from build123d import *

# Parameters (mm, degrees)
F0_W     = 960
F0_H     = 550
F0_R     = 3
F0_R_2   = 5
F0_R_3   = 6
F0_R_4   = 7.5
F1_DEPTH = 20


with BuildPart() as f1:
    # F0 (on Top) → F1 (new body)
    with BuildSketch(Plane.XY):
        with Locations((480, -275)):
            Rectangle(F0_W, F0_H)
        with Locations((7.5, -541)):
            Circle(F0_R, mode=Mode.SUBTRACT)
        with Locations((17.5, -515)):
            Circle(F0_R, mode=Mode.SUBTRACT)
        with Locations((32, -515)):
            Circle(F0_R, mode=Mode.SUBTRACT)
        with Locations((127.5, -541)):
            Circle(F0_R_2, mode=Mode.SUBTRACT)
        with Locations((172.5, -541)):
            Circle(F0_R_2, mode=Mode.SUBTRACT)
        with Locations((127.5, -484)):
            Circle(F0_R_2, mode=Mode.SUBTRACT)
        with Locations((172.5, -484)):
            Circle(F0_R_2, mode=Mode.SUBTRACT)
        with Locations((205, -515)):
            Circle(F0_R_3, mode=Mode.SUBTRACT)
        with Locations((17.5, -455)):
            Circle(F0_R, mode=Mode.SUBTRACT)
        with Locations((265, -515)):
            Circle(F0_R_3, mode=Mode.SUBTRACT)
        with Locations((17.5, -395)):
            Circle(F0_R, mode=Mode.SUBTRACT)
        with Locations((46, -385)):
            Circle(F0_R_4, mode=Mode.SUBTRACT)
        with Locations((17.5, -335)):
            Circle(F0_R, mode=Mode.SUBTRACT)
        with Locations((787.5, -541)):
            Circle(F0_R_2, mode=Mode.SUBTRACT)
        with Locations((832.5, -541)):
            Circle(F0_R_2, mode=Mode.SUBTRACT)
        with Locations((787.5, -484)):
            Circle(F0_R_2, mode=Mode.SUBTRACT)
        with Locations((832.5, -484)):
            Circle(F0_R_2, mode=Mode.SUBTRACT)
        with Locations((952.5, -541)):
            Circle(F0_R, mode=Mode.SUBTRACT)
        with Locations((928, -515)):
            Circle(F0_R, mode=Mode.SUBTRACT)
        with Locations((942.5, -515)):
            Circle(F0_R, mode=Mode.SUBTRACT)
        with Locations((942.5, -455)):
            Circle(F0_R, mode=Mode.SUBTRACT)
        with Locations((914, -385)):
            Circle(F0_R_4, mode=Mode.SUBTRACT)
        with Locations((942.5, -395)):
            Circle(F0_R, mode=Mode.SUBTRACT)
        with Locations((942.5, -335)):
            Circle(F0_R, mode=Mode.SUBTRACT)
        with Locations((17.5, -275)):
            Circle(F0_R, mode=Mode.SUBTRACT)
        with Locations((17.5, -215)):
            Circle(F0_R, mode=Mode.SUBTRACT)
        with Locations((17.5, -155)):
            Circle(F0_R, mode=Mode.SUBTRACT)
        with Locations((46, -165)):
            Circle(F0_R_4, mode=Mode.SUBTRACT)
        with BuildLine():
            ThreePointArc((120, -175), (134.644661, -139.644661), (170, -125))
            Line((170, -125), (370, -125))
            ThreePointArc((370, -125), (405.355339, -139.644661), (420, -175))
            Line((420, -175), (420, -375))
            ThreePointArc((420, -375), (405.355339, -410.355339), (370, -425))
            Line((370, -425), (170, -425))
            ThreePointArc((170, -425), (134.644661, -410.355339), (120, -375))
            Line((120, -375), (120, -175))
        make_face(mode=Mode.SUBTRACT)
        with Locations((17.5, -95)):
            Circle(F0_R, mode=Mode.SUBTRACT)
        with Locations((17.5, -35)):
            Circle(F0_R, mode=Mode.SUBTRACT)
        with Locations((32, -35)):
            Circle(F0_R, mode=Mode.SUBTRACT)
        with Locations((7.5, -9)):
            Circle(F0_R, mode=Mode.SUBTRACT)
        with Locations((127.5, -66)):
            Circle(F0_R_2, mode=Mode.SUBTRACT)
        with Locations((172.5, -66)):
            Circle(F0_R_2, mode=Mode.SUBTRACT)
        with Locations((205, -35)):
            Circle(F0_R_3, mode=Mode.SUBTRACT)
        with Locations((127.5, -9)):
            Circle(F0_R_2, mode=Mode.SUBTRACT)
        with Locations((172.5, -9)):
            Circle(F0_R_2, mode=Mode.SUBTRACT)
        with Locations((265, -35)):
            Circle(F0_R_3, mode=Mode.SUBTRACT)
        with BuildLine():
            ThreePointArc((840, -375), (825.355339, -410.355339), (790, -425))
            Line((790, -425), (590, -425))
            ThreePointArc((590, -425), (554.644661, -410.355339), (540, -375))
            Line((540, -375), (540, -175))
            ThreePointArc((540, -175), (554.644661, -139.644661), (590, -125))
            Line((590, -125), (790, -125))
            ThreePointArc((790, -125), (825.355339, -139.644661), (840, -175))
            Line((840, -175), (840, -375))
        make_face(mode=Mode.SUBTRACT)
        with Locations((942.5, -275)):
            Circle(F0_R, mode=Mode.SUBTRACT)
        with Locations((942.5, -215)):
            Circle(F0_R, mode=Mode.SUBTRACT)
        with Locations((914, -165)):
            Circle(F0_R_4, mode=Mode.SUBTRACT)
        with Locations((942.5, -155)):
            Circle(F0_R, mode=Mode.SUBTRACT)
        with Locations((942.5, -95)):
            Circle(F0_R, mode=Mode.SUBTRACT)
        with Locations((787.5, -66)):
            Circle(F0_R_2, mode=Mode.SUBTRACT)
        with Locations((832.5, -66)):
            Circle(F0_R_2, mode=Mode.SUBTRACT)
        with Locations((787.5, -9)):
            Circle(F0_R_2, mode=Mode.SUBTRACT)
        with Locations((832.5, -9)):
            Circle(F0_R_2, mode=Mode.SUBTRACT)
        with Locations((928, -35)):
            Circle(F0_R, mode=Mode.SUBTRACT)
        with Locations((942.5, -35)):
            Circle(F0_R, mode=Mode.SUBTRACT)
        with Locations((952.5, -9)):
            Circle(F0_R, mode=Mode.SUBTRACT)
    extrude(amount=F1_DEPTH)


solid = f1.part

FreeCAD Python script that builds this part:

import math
import FreeCAD as App
import Part
import Sketcher
from FreeCAD import Vector
Q = App.Units.Quantity

doc = App.newDocument("Part")
body = doc.addObject("PartDesign::Body", "Body")

# Sketch on XY plane
sketch1 = body.newObject("Sketcher::SketchObject", "Sketch")
sketch1.AttachmentSupport = (doc.getObject("XY_Plane"), [""])
sketch1.MapMode = "FlatFace"
sketch1.addGeometry(Part.LineSegment(Vector(0, 0, 0), Vector(0, -550, 0)), False)
sketch1.addGeometry(Part.LineSegment(Vector(0, -550, 0), Vector(960, -550, 0)), False)
sketch1.addGeometry(Part.LineSegment(Vector(960, -550, 0), Vector(960, 0, 0)), False)
sketch1.addGeometry(Part.LineSegment(Vector(960, 0, 0), Vector(0, 0, 0)), False)
sketch1.addGeometry(Part.Circle(Vector(7.5, -541, 0), Vector(0, 0, 1), 3), False)
sketch1.addGeometry(Part.Circle(Vector(17.5, -515, 0), Vector(0, 0, 1), 3), False)
sketch1.addGeometry(Part.Circle(Vector(32, -515, 0), Vector(0, 0, 1), 3), False)
sketch1.addGeometry(Part.Circle(Vector(127.5, -541, 0), Vector(0, 0, 1), 5), False)
sketch1.addGeometry(Part.Circle(Vector(172.5, -541, 0), Vector(0, 0, 1), 5), False)
sketch1.addGeometry(Part.Circle(Vector(205, -515, 0), Vector(0, 0, 1), 6), False)
sketch1.addGeometry(Part.Circle(Vector(127.5, -484, 0), Vector(0, 0, 1), 5), False)
sketch1.addGeometry(Part.Circle(Vector(172.5, -484, 0), Vector(0, 0, 1), 5), False)
sketch1.addGeometry(Part.Circle(Vector(17.5, -455, 0), Vector(0, 0, 1), 3), False)
sketch1.addGeometry(Part.Circle(Vector(265, -515, 0), Vector(0, 0, 1), 6), False)
sketch1.addGeometry(Part.Circle(Vector(17.5, -395, 0), Vector(0, 0, 1), 3), False)
sketch1.addGeometry(Part.Circle(Vector(46, -385, 0), Vector(0, 0, 1), 7.5), False)
sketch1.addGeometry(Part.Circle(Vector(17.5, -335, 0), Vector(0, 0, 1), 3), False)
sketch1.addGeometry(Part.Circle(Vector(787.5, -541, 0), Vector(0, 0, 1), 5), False)
sketch1.addGeometry(Part.Circle(Vector(832.5, -541, 0), Vector(0, 0, 1), 5), False)
sketch1.addGeometry(Part.Circle(Vector(787.5, -484, 0), Vector(0, 0, 1), 5), False)
sketch1.addGeometry(Part.Circle(Vector(832.5, -484, 0), Vector(0, 0, 1), 5), False)
sketch1.addGeometry(Part.Circle(Vector(952.5, -541, 0), Vector(0, 0, 1), 3), False)
sketch1.addGeometry(Part.Circle(Vector(928, -515, 0), Vector(0, 0, 1), 3), False)
sketch1.addGeometry(Part.Circle(Vector(942.5, -515, 0), Vector(0, 0, 1), 3), False)
sketch1.addGeometry(Part.Circle(Vector(942.5, -455, 0), Vector(0, 0, 1), 3), False)
sketch1.addGeometry(Part.Circle(Vector(942.5, -395, 0), Vector(0, 0, 1), 3), False)
sketch1.addGeometry(Part.Circle(Vector(914, -385, 0), Vector(0, 0, 1), 7.5), False)
sketch1.addGeometry(Part.Circle(Vector(942.5, -335, 0), Vector(0, 0, 1), 3), False)
sketch1.addGeometry(Part.Circle(Vector(17.5, -275, 0), Vector(0, 0, 1), 3), False)
sketch1.addGeometry(Part.Circle(Vector(17.5, -215, 0), Vector(0, 0, 1), 3), False)
sketch1.addGeometry(Part.Circle(Vector(46, -165, 0), Vector(0, 0, 1), 7.5), False)
sketch1.addGeometry(Part.Circle(Vector(17.5, -155, 0), Vector(0, 0, 1), 3), False)
sketch1.addGeometry(Part.LineSegment(Vector(120, -375, 0), Vector(120, -175, 0)), False)
sketch1.addGeometry(Part.ArcOfCircle(Part.Circle(Vector(170, -175, 0), Vector(0, 0, 1), 50), math.radians(90), math.radians(180)), False)
sketch1.addGeometry(Part.LineSegment(Vector(170, -125, 0), Vector(370, -125, 0)), False)
sketch1.addGeometry(Part.ArcOfCircle(Part.Circle(Vector(370, -175, 0), Vector(0, 0, 1), 50), math.radians(0), math.radians(90)), False)
sketch1.addGeometry(Part.LineSegment(Vector(420, -175, 0), Vector(420, -375, 0)), False)
sketch1.addGeometry(Part.ArcOfCircle(Part.Circle(Vector(370, -375, 0), Vector(0, 0, 1), 50), math.radians(-90), math.radians(0)), False)
sketch1.addGeometry(Part.LineSegment(Vector(370, -425, 0), Vector(170, -425, 0)), False)
sketch1.addGeometry(Part.ArcOfCircle(Part.Circle(Vector(170, -375, 0), Vector(0, 0, 1), 50), math.radians(-180), math.radians(-90)), False)
sketch1.addGeometry(Part.Circle(Vector(17.5, -95, 0), Vector(0, 0, 1), 3), False)
sketch1.addGeometry(Part.Circle(Vector(17.5, -35, 0), Vector(0, 0, 1), 3), False)
sketch1.addGeometry(Part.Circle(Vector(32, -35, 0), Vector(0, 0, 1), 3), False)
sketch1.addGeometry(Part.Circle(Vector(7.5, -9, 0), Vector(0, 0, 1), 3), False)
sketch1.addGeometry(Part.Circle(Vector(127.5, -66, 0), Vector(0, 0, 1), 5), False)
sketch1.addGeometry(Part.Circle(Vector(172.5, -66, 0), Vector(0, 0, 1), 5), False)
sketch1.addGeometry(Part.Circle(Vector(127.5, -9, 0), Vector(0, 0, 1), 5), False)
sketch1.addGeometry(Part.Circle(Vector(172.5, -9, 0), Vector(0, 0, 1), 5), False)
sketch1.addGeometry(Part.Circle(Vector(205, -35, 0), Vector(0, 0, 1), 6), False)
sketch1.addGeometry(Part.Circle(Vector(265, -35, 0), Vector(0, 0, 1), 6), False)
sketch1.addGeometry(Part.LineSegment(Vector(840, -175, 0), Vector(840, -375, 0)), False)
sketch1.addGeometry(Part.ArcOfCircle(Part.Circle(Vector(790, -375, 0), Vector(0, 0, 1), 50), math.radians(-90), math.radians(0)), False)
sketch1.addGeometry(Part.LineSegment(Vector(790, -425, 0), Vector(590, -425, 0)), False)
sketch1.addGeometry(Part.ArcOfCircle(Part.Circle(Vector(590, -375, 0), Vector(0, 0, 1), 50), math.radians(-180), math.radians(-90)), False)
sketch1.addGeometry(Part.LineSegment(Vector(540, -375, 0), Vector(540, -175, 0)), False)
sketch1.addGeometry(Part.ArcOfCircle(Part.Circle(Vector(590, -175, 0), Vector(0, 0, 1), 50), math.radians(90), math.radians(180)), False)
sketch1.addGeometry(Part.LineSegment(Vector(590, -125, 0), Vector(790, -125, 0)), False)
sketch1.addGeometry(Part.ArcOfCircle(Part.Circle(Vector(790, -175, 0), Vector(0, 0, 1), 50), math.radians(0), math.radians(90)), False)
sketch1.addGeometry(Part.Circle(Vector(942.5, -275, 0), Vector(0, 0, 1), 3), False)
sketch1.addGeometry(Part.Circle(Vector(942.5, -215, 0), Vector(0, 0, 1), 3), False)
sketch1.addGeometry(Part.Circle(Vector(914, -165, 0), Vector(0, 0, 1), 7.5), False)
sketch1.addGeometry(Part.Circle(Vector(942.5, -155, 0), Vector(0, 0, 1), 3), False)
sketch1.addGeometry(Part.Circle(Vector(942.5, -95, 0), Vector(0, 0, 1), 3), False)
sketch1.addGeometry(Part.Circle(Vector(787.5, -66, 0), Vector(0, 0, 1), 5), False)
sketch1.addGeometry(Part.Circle(Vector(832.5, -66, 0), Vector(0, 0, 1), 5), False)
sketch1.addGeometry(Part.Circle(Vector(787.5, -9, 0), Vector(0, 0, 1), 5), False)
sketch1.addGeometry(Part.Circle(Vector(832.5, -9, 0), Vector(0, 0, 1), 5), False)
sketch1.addGeometry(Part.Circle(Vector(928, -35, 0), Vector(0, 0, 1), 3), False)
sketch1.addGeometry(Part.Circle(Vector(942.5, -35, 0), Vector(0, 0, 1), 3), False)
sketch1.addGeometry(Part.Circle(Vector(952.5, -9, 0), Vector(0, 0, 1), 3), False)
sketch1.addConstraint(Sketcher.Constraint("Coincident", 0, 2, 1, 1))
sketch1.addConstraint(Sketcher.Constraint("Coincident", 1, 2, 2, 1))
sketch1.addConstraint(Sketcher.Constraint("Coincident", 2, 2, 3, 1))
sketch1.addConstraint(Sketcher.Constraint("Coincident", 3, 2, 0, 1))
sketch1.addConstraint(Sketcher.Constraint("Tangent", 32, 2, 33, 2))
sketch1.addConstraint(Sketcher.Constraint("Tangent", 33, 1, 34, 1))
sketch1.addConstraint(Sketcher.Constraint("Tangent", 34, 2, 35, 2))
sketch1.addConstraint(Sketcher.Constraint("Tangent", 35, 1, 36, 1))
sketch1.addConstraint(Sketcher.Constraint("Tangent", 36, 2, 37, 2))
sketch1.addConstraint(Sketcher.Constraint("Tangent", 37, 1, 38, 1))
sketch1.addConstraint(Sketcher.Constraint("Tangent", 38, 2, 39, 2))
sketch1.addConstraint(Sketcher.Constraint("Tangent", 39, 1, 32, 1))
sketch1.addConstraint(Sketcher.Constraint("Tangent", 50, 2, 51, 2))
sketch1.addConstraint(Sketcher.Constraint("Tangent", 51, 1, 52, 1))
sketch1.addConstraint(Sketcher.Constraint("Tangent", 52, 2, 53, 2))
sketch1.addConstraint(Sketcher.Constraint("Tangent", 53, 1, 54, 1))
sketch1.addConstraint(Sketcher.Constraint("Tangent", 54, 2, 55, 2))
sketch1.addConstraint(Sketcher.Constraint("Tangent", 55, 1, 56, 1))
sketch1.addConstraint(Sketcher.Constraint("Tangent", 56, 2, 57, 2))
sketch1.addConstraint(Sketcher.Constraint("Tangent", 57, 1, 50, 1))
sketch1.addConstraint(Sketcher.Constraint("Vertical", 0))
sketch1.addConstraint(Sketcher.Constraint("Horizontal", 1))
sketch1.addConstraint(Sketcher.Constraint("Vertical", 2))
sketch1.addConstraint(Sketcher.Constraint("Horizontal", 3))
sketch1.addConstraint(Sketcher.Constraint("Vertical", 32))
sketch1.addConstraint(Sketcher.Constraint("Horizontal", 34))
sketch1.addConstraint(Sketcher.Constraint("Vertical", 36))
sketch1.addConstraint(Sketcher.Constraint("Horizontal", 38))
sketch1.addConstraint(Sketcher.Constraint("Vertical", 50))
sketch1.addConstraint(Sketcher.Constraint("Horizontal", 52))
sketch1.addConstraint(Sketcher.Constraint("Vertical", 54))
sketch1.addConstraint(Sketcher.Constraint("Horizontal", 56))
sketch1.addConstraint(Sketcher.Constraint("Coincident", 3, 2, -1, 1))
sketch1.addConstraint(Sketcher.Constraint("Equal", 4, 5))
sketch1.addConstraint(Sketcher.Constraint("Equal", 5, 6))
sketch1.addConstraint(Sketcher.Constraint("Equal", 7, 8))
sketch1.addConstraint(Sketcher.Constraint("Equal", 8, 10))
sketch1.addConstraint(Sketcher.Constraint("Equal", 10, 11))
sketch1.addConstraint(Sketcher.Constraint("Equal", 6, 12))
sketch1.addConstraint(Sketcher.Constraint("Equal", 9, 13))
sketch1.addConstraint(Sketcher.Constraint("Equal", 12, 14))
sketch1.addConstraint(Sketcher.Constraint("Equal", 14, 16))
sketch1.addConstraint(Sketcher.Constraint("Equal", 11, 17))
sketch1.addConstraint(Sketcher.Constraint("Equal", 17, 18))
sketch1.addConstraint(Sketcher.Constraint("Equal", 18, 19))
sketch1.addConstraint(Sketcher.Constraint("Equal", 19, 20))
sketch1.addConstraint(Sketcher.Constraint("Equal", 16, 21))
sketch1.addConstraint(Sketcher.Constraint("Equal", 21, 22))
sketch1.addConstraint(Sketcher.Constraint("Equal", 22, 23))
sketch1.addConstraint(Sketcher.Constraint("Equal", 23, 24))
sketch1.addConstraint(Sketcher.Constraint("Equal", 24, 25))
sketch1.addConstraint(Sketcher.Constraint("Equal", 15, 26))
sketch1.addConstraint(Sketcher.Constraint("Equal", 25, 27))
sketch1.addConstraint(Sketcher.Constraint("Equal", 27, 28))
sketch1.addConstraint(Sketcher.Constraint("Equal", 28, 29))
sketch1.addConstraint(Sketcher.Constraint("Equal", 26, 30))
sketch1.addConstraint(Sketcher.Constraint("Equal", 29, 31))
sketch1.addConstraint(Sketcher.Constraint("Equal", 33, 35))
sketch1.addConstraint(Sketcher.Constraint("Equal", 35, 37))
sketch1.addConstraint(Sketcher.Constraint("Equal", 37, 39))
sketch1.addConstraint(Sketcher.Constraint("Equal", 31, 40))
sketch1.addConstraint(Sketcher.Constraint("Equal", 40, 41))
sketch1.addConstraint(Sketcher.Constraint("Equal", 41, 42))
sketch1.addConstraint(Sketcher.Constraint("Equal", 42, 43))
sketch1.addConstraint(Sketcher.Constraint("Equal", 20, 44))
sketch1.addConstraint(Sketcher.Constraint("Equal", 44, 45))
sketch1.addConstraint(Sketcher.Constraint("Equal", 45, 46))
sketch1.addConstraint(Sketcher.Constraint("Equal", 46, 47))
sketch1.addConstraint(Sketcher.Constraint("Equal", 13, 48))
sketch1.addConstraint(Sketcher.Constraint("Equal", 48, 49))
sketch1.addConstraint(Sketcher.Constraint("Equal", 39, 51))
sketch1.addConstraint(Sketcher.Constraint("Equal", 51, 53))
sketch1.addConstraint(Sketcher.Constraint("Equal", 53, 55))
sketch1.addConstraint(Sketcher.Constraint("Equal", 55, 57))
sketch1.addConstraint(Sketcher.Constraint("Equal", 43, 58))
sketch1.addConstraint(Sketcher.Constraint("Equal", 58, 59))
sketch1.addConstraint(Sketcher.Constraint("Equal", 30, 60))
sketch1.addConstraint(Sketcher.Constraint("Equal", 59, 61))
sketch1.addConstraint(Sketcher.Constraint("Equal", 61, 62))
sketch1.addConstraint(Sketcher.Constraint("Equal", 47, 63))
sketch1.addConstraint(Sketcher.Constraint("Equal", 63, 64))
sketch1.addConstraint(Sketcher.Constraint("Equal", 64, 65))
sketch1.addConstraint(Sketcher.Constraint("Equal", 65, 66))
sketch1.addConstraint(Sketcher.Constraint("Equal", 62, 67))
sketch1.addConstraint(Sketcher.Constraint("Equal", 67, 68))
sketch1.addConstraint(Sketcher.Constraint("Equal", 68, 69))
sketch1.addConstraint(Sketcher.Constraint("Horizontal", 5, 3, 6, 3))
sketch1.addConstraint(Sketcher.Constraint("Horizontal", 4, 3, 7, 3))
sketch1.addConstraint(Sketcher.Constraint("Horizontal", 7, 3, 8, 3))
sketch1.addConstraint(Sketcher.Constraint("Horizontal", 6, 3, 9, 3))
sketch1.addConstraint(Sketcher.Constraint("Horizontal", 10, 3, 11, 3))
sketch1.addConstraint(Sketcher.Constraint("Horizontal", 9, 3, 13, 3))
sketch1.addConstraint(Sketcher.Constraint("Horizontal", 8, 3, 17, 3))
sketch1.addConstraint(Sketcher.Constraint("Horizontal", 17, 3, 18, 3))
sketch1.addConstraint(Sketcher.Constraint("Horizontal", 11, 3, 19, 3))
sketch1.addConstraint(Sketcher.Constraint("Horizontal", 19, 3, 20, 3))
sketch1.addConstraint(Sketcher.Constraint("Horizontal", 18, 3, 21, 3))
sketch1.addConstraint(Sketcher.Constraint("Horizontal", 13, 3, 22, 3))
sketch1.addConstraint(Sketcher.Constraint("Horizontal", 22, 3, 23, 3))
sketch1.addConstraint(Sketcher.Constraint("Horizontal", 12, 3, 24, 3))
sketch1.addConstraint(Sketcher.Constraint("Horizontal", 14, 3, 25, 3))
sketch1.addConstraint(Sketcher.Constraint("Horizontal", 15, 3, 26, 3))
sketch1.addConstraint(Sketcher.Constraint("Horizontal", 16, 3, 27, 3))
sketch1.addConstraint(Sketcher.Constraint("Horizontal", 41, 3, 42, 3))
sketch1.addConstraint(Sketcher.Constraint("Horizontal", 44, 3, 45, 3))
sketch1.addConstraint(Sketcher.Constraint("Horizontal", 43, 3, 46, 3))
sketch1.addConstraint(Sketcher.Constraint("Horizontal", 46, 3, 47, 3))
sketch1.addConstraint(Sketcher.Constraint("Horizontal", 42, 3, 48, 3))
sketch1.addConstraint(Sketcher.Constraint("Horizontal", 48, 3, 49, 3))
sketch1.addConstraint(Sketcher.Constraint("Horizontal", 39, 3, 51, 3))
sketch1.addConstraint(Sketcher.Constraint("Horizontal", 35, 3, 55, 3))
sketch1.addConstraint(Sketcher.Constraint("Horizontal", 28, 3, 58, 3))
sketch1.addConstraint(Sketcher.Constraint("Horizontal", 29, 3, 59, 3))
sketch1.addConstraint(Sketcher.Constraint("Horizontal", 30, 3, 60, 3))
sketch1.addConstraint(Sketcher.Constraint("Horizontal", 31, 3, 61, 3))
sketch1.addConstraint(Sketcher.Constraint("Horizontal", 40, 3, 62, 3))
sketch1.addConstraint(Sketcher.Constraint("Horizontal", 45, 3, 63, 3))
sketch1.addConstraint(Sketcher.Constraint("Horizontal", 63, 3, 64, 3))
sketch1.addConstraint(Sketcher.Constraint("Horizontal", 47, 3, 65, 3))
sketch1.addConstraint(Sketcher.Constraint("Horizontal", 65, 3, 66, 3))
sketch1.addConstraint(Sketcher.Constraint("Horizontal", 49, 3, 67, 3))
sketch1.addConstraint(Sketcher.Constraint("Horizontal", 67, 3, 68, 3))
sketch1.addConstraint(Sketcher.Constraint("Horizontal", 66, 3, 69, 3))
sketch1.addConstraint(Sketcher.Constraint("Vertical", 7, 3, 10, 3))
sketch1.addConstraint(Sketcher.Constraint("Vertical", 8, 3, 11, 3))
sketch1.addConstraint(Sketcher.Constraint("Vertical", 5, 3, 12, 3))
sketch1.addConstraint(Sketcher.Constraint("Vertical", 12, 3, 14, 3))
sketch1.addConstraint(Sketcher.Constraint("Vertical", 14, 3, 16, 3))
sketch1.addConstraint(Sketcher.Constraint("Vertical", 17, 3, 19, 3))
sketch1.addConstraint(Sketcher.Constraint("Vertical", 18, 3, 20, 3))
sketch1.addConstraint(Sketcher.Constraint("Vertical", 23, 3, 24, 3))
sketch1.addConstraint(Sketcher.Constraint("Vertical", 24, 3, 25, 3))
sketch1.addConstraint(Sketcher.Constraint("Vertical", 25, 3, 27, 3))
sketch1.addConstraint(Sketcher.Constraint("Vertical", 16, 3, 28, 3))
sketch1.addConstraint(Sketcher.Constraint("Vertical", 28, 3, 29, 3))
sketch1.addConstraint(Sketcher.Constraint("Vertical", 15, 3, 30, 3))
sketch1.addConstraint(Sketcher.Constraint("Vertical", 29, 3, 31, 3))
sketch1.addConstraint(Sketcher.Constraint("Vertical", 31, 3, 40, 3))
sketch1.addConstraint(Sketcher.Constraint("Vertical", 40, 3, 41, 3))
sketch1.addConstraint(Sketcher.Constraint("Vertical", 6, 3, 42, 3))
sketch1.addConstraint(Sketcher.Constraint("Vertical", 4, 3, 43, 3))
sketch1.addConstraint(Sketcher.Constraint("Vertical", 10, 3, 44, 3))
sketch1.addConstraint(Sketcher.Constraint("Vertical", 11, 3, 45, 3))
sketch1.addConstraint(Sketcher.Constraint("Vertical", 44, 3, 46, 3))
sketch1.addConstraint(Sketcher.Constraint("Vertical", 45, 3, 47, 3))
sketch1.addConstraint(Sketcher.Constraint("Vertical", 9, 3, 48, 3))
sketch1.addConstraint(Sketcher.Constraint("Vertical", 13, 3, 49, 3))
sketch1.addConstraint(Sketcher.Constraint("Vertical", 27, 3, 58, 3))
sketch1.addConstraint(Sketcher.Constraint("Vertical", 58, 3, 59, 3))
sketch1.addConstraint(Sketcher.Constraint("Vertical", 26, 3, 60, 3))
sketch1.addConstraint(Sketcher.Constraint("Vertical", 59, 3, 61, 3))
sketch1.addConstraint(Sketcher.Constraint("Vertical", 61, 3, 62, 3))
sketch1.addConstraint(Sketcher.Constraint("Vertical", 19, 3, 63, 3))
sketch1.addConstraint(Sketcher.Constraint("Vertical", 20, 3, 64, 3))
sketch1.addConstraint(Sketcher.Constraint("Vertical", 63, 3, 65, 3))
sketch1.addConstraint(Sketcher.Constraint("Vertical", 64, 3, 66, 3))
sketch1.addConstraint(Sketcher.Constraint("Vertical", 22, 3, 67, 3))
sketch1.addConstraint(Sketcher.Constraint("Vertical", 62, 3, 68, 3))
sketch1.addConstraint(Sketcher.Constraint("Vertical", 21, 3, 69, 3))
sketch1.addConstraint(Sketcher.Constraint("Equal", 38, 52))
sketch1.addConstraint(Sketcher.Constraint("Equal", 56, 32))
sketch1.addConstraint(Sketcher.Constraint("Diameter", 4, Q("6 mm")))
sketch1.addConstraint(Sketcher.Constraint("Diameter", 7, Q("10 mm")))
sketch1.addConstraint(Sketcher.Constraint("Diameter", 9, Q("12 mm")))
sketch1.addConstraint(Sketcher.Constraint("Diameter", 15, Q("15 mm")))
sketch1.addConstraint(Sketcher.Constraint("Radius", 33, Q("50 mm")))
sketch1.addConstraint(Sketcher.Constraint("DistanceX", 1, 1, 1, 2, Q("960 mm")))
sketch1.addConstraint(Sketcher.Constraint("DistanceX", 34, 1, 34, 2, Q("200 mm")))
sketch1.addConstraint(Sketcher.Constraint("DistanceY", 0, 2, 0, 1, Q("550 mm")))
sketch1.addConstraint(Sketcher.Constraint("DistanceY", 4, 3, -1, 1, Q("541 mm")))
sketch1.addConstraint(Sketcher.Constraint("DistanceY", 5, 3, -1, 1, Q("515 mm")))
sketch1.addConstraint(Sketcher.Constraint("DistanceX", -1, 1, 6, 3, Q("32 mm")))
sketch1.addConstraint(Sketcher.Constraint("DistanceX", -1, 1, 9, 3, Q("205 mm")))
sketch1.addConstraint(Sketcher.Constraint("DistanceY", 10, 3, -1, 1, Q("484 mm")))
sketch1.addConstraint(Sketcher.Constraint("DistanceY", 12, 3, -1, 1, Q("455 mm")))
sketch1.addConstraint(Sketcher.Constraint("DistanceX", -1, 1, 13, 3, Q("265 mm")))
sketch1.addConstraint(Sketcher.Constraint("DistanceY", 14, 3, -1, 1, Q("395 mm")))
sketch1.addConstraint(Sketcher.Constraint("DistanceX", -1, 1, 15, 3, Q("46 mm")))
sketch1.addConstraint(Sketcher.Constraint("DistanceY", 15, 3, -1, 1, Q("385 mm")))
sketch1.addConstraint(Sketcher.Constraint("DistanceY", 16, 3, -1, 1, Q("335 mm")))
sketch1.addConstraint(Sketcher.Constraint("DistanceX", -1, 1, 22, 3, Q("928 mm")))
sketch1.addConstraint(Sketcher.Constraint("DistanceX", -1, 1, 26, 3, Q("914 mm")))
sketch1.addConstraint(Sketcher.Constraint("DistanceY", 28, 3, -1, 1, Q("275 mm")))
sketch1.addConstraint(Sketcher.Constraint("DistanceY", 29, 3, -1, 1, Q("215 mm")))
sketch1.addConstraint(Sketcher.Constraint("DistanceY", 30, 3, -1, 1, Q("165 mm")))
sketch1.addConstraint(Sketcher.Constraint("DistanceY", 31, 3, -1, 1, Q("155 mm")))
sketch1.addConstraint(Sketcher.Constraint("DistanceX", -1, 1, 33, 3, Q("170 mm")))
sketch1.addConstraint(Sketcher.Constraint("DistanceY", 33, 3, -1, 1, Q("175 mm")))
sketch1.addConstraint(Sketcher.Constraint("DistanceY", 40, 3, -1, 1, Q("95 mm")))
sketch1.addConstraint(Sketcher.Constraint("DistanceY", 41, 3, -1, 1, Q("35 mm")))
sketch1.addConstraint(Sketcher.Constraint("DistanceY", 43, 3, -1, 1, Q("9 mm")))
sketch1.addConstraint(Sketcher.Constraint("DistanceY", 44, 3, -1, 1, Q("66 mm")))
sketch1.addConstraint(Sketcher.Constraint("DistanceX", -1, 1, 51, 3, Q("790 mm")))
sketch1.addConstraint(Sketcher.Constraint("DistanceX", -1, 1, 4, 3, Q("7.5 mm")))
sketch1.addConstraint(Sketcher.Constraint("DistanceX", -1, 1, 5, 3, Q("17.5 mm")))
sketch1.addConstraint(Sketcher.Constraint("DistanceX", -1, 1, 7, 3, Q("127.5 mm")))
sketch1.addConstraint(Sketcher.Constraint("DistanceX", -1, 1, 8, 3, Q("172.5 mm")))
sketch1.addConstraint(Sketcher.Constraint("DistanceX", -1, 1, 17, 3, Q("787.5 mm")))
sketch1.addConstraint(Sketcher.Constraint("DistanceX", -1, 1, 18, 3, Q("832.5 mm")))
sketch1.addConstraint(Sketcher.Constraint("DistanceX", -1, 1, 21, 3, Q("952.5 mm")))
sketch1.addConstraint(Sketcher.Constraint("DistanceX", -1, 1, 23, 3, Q("942.5 mm")))
pad1 = body.newObject("PartDesign::Pad", "Pad")
pad1.Profile = sketch1
pad1.Length = 20

doc.recompute()
